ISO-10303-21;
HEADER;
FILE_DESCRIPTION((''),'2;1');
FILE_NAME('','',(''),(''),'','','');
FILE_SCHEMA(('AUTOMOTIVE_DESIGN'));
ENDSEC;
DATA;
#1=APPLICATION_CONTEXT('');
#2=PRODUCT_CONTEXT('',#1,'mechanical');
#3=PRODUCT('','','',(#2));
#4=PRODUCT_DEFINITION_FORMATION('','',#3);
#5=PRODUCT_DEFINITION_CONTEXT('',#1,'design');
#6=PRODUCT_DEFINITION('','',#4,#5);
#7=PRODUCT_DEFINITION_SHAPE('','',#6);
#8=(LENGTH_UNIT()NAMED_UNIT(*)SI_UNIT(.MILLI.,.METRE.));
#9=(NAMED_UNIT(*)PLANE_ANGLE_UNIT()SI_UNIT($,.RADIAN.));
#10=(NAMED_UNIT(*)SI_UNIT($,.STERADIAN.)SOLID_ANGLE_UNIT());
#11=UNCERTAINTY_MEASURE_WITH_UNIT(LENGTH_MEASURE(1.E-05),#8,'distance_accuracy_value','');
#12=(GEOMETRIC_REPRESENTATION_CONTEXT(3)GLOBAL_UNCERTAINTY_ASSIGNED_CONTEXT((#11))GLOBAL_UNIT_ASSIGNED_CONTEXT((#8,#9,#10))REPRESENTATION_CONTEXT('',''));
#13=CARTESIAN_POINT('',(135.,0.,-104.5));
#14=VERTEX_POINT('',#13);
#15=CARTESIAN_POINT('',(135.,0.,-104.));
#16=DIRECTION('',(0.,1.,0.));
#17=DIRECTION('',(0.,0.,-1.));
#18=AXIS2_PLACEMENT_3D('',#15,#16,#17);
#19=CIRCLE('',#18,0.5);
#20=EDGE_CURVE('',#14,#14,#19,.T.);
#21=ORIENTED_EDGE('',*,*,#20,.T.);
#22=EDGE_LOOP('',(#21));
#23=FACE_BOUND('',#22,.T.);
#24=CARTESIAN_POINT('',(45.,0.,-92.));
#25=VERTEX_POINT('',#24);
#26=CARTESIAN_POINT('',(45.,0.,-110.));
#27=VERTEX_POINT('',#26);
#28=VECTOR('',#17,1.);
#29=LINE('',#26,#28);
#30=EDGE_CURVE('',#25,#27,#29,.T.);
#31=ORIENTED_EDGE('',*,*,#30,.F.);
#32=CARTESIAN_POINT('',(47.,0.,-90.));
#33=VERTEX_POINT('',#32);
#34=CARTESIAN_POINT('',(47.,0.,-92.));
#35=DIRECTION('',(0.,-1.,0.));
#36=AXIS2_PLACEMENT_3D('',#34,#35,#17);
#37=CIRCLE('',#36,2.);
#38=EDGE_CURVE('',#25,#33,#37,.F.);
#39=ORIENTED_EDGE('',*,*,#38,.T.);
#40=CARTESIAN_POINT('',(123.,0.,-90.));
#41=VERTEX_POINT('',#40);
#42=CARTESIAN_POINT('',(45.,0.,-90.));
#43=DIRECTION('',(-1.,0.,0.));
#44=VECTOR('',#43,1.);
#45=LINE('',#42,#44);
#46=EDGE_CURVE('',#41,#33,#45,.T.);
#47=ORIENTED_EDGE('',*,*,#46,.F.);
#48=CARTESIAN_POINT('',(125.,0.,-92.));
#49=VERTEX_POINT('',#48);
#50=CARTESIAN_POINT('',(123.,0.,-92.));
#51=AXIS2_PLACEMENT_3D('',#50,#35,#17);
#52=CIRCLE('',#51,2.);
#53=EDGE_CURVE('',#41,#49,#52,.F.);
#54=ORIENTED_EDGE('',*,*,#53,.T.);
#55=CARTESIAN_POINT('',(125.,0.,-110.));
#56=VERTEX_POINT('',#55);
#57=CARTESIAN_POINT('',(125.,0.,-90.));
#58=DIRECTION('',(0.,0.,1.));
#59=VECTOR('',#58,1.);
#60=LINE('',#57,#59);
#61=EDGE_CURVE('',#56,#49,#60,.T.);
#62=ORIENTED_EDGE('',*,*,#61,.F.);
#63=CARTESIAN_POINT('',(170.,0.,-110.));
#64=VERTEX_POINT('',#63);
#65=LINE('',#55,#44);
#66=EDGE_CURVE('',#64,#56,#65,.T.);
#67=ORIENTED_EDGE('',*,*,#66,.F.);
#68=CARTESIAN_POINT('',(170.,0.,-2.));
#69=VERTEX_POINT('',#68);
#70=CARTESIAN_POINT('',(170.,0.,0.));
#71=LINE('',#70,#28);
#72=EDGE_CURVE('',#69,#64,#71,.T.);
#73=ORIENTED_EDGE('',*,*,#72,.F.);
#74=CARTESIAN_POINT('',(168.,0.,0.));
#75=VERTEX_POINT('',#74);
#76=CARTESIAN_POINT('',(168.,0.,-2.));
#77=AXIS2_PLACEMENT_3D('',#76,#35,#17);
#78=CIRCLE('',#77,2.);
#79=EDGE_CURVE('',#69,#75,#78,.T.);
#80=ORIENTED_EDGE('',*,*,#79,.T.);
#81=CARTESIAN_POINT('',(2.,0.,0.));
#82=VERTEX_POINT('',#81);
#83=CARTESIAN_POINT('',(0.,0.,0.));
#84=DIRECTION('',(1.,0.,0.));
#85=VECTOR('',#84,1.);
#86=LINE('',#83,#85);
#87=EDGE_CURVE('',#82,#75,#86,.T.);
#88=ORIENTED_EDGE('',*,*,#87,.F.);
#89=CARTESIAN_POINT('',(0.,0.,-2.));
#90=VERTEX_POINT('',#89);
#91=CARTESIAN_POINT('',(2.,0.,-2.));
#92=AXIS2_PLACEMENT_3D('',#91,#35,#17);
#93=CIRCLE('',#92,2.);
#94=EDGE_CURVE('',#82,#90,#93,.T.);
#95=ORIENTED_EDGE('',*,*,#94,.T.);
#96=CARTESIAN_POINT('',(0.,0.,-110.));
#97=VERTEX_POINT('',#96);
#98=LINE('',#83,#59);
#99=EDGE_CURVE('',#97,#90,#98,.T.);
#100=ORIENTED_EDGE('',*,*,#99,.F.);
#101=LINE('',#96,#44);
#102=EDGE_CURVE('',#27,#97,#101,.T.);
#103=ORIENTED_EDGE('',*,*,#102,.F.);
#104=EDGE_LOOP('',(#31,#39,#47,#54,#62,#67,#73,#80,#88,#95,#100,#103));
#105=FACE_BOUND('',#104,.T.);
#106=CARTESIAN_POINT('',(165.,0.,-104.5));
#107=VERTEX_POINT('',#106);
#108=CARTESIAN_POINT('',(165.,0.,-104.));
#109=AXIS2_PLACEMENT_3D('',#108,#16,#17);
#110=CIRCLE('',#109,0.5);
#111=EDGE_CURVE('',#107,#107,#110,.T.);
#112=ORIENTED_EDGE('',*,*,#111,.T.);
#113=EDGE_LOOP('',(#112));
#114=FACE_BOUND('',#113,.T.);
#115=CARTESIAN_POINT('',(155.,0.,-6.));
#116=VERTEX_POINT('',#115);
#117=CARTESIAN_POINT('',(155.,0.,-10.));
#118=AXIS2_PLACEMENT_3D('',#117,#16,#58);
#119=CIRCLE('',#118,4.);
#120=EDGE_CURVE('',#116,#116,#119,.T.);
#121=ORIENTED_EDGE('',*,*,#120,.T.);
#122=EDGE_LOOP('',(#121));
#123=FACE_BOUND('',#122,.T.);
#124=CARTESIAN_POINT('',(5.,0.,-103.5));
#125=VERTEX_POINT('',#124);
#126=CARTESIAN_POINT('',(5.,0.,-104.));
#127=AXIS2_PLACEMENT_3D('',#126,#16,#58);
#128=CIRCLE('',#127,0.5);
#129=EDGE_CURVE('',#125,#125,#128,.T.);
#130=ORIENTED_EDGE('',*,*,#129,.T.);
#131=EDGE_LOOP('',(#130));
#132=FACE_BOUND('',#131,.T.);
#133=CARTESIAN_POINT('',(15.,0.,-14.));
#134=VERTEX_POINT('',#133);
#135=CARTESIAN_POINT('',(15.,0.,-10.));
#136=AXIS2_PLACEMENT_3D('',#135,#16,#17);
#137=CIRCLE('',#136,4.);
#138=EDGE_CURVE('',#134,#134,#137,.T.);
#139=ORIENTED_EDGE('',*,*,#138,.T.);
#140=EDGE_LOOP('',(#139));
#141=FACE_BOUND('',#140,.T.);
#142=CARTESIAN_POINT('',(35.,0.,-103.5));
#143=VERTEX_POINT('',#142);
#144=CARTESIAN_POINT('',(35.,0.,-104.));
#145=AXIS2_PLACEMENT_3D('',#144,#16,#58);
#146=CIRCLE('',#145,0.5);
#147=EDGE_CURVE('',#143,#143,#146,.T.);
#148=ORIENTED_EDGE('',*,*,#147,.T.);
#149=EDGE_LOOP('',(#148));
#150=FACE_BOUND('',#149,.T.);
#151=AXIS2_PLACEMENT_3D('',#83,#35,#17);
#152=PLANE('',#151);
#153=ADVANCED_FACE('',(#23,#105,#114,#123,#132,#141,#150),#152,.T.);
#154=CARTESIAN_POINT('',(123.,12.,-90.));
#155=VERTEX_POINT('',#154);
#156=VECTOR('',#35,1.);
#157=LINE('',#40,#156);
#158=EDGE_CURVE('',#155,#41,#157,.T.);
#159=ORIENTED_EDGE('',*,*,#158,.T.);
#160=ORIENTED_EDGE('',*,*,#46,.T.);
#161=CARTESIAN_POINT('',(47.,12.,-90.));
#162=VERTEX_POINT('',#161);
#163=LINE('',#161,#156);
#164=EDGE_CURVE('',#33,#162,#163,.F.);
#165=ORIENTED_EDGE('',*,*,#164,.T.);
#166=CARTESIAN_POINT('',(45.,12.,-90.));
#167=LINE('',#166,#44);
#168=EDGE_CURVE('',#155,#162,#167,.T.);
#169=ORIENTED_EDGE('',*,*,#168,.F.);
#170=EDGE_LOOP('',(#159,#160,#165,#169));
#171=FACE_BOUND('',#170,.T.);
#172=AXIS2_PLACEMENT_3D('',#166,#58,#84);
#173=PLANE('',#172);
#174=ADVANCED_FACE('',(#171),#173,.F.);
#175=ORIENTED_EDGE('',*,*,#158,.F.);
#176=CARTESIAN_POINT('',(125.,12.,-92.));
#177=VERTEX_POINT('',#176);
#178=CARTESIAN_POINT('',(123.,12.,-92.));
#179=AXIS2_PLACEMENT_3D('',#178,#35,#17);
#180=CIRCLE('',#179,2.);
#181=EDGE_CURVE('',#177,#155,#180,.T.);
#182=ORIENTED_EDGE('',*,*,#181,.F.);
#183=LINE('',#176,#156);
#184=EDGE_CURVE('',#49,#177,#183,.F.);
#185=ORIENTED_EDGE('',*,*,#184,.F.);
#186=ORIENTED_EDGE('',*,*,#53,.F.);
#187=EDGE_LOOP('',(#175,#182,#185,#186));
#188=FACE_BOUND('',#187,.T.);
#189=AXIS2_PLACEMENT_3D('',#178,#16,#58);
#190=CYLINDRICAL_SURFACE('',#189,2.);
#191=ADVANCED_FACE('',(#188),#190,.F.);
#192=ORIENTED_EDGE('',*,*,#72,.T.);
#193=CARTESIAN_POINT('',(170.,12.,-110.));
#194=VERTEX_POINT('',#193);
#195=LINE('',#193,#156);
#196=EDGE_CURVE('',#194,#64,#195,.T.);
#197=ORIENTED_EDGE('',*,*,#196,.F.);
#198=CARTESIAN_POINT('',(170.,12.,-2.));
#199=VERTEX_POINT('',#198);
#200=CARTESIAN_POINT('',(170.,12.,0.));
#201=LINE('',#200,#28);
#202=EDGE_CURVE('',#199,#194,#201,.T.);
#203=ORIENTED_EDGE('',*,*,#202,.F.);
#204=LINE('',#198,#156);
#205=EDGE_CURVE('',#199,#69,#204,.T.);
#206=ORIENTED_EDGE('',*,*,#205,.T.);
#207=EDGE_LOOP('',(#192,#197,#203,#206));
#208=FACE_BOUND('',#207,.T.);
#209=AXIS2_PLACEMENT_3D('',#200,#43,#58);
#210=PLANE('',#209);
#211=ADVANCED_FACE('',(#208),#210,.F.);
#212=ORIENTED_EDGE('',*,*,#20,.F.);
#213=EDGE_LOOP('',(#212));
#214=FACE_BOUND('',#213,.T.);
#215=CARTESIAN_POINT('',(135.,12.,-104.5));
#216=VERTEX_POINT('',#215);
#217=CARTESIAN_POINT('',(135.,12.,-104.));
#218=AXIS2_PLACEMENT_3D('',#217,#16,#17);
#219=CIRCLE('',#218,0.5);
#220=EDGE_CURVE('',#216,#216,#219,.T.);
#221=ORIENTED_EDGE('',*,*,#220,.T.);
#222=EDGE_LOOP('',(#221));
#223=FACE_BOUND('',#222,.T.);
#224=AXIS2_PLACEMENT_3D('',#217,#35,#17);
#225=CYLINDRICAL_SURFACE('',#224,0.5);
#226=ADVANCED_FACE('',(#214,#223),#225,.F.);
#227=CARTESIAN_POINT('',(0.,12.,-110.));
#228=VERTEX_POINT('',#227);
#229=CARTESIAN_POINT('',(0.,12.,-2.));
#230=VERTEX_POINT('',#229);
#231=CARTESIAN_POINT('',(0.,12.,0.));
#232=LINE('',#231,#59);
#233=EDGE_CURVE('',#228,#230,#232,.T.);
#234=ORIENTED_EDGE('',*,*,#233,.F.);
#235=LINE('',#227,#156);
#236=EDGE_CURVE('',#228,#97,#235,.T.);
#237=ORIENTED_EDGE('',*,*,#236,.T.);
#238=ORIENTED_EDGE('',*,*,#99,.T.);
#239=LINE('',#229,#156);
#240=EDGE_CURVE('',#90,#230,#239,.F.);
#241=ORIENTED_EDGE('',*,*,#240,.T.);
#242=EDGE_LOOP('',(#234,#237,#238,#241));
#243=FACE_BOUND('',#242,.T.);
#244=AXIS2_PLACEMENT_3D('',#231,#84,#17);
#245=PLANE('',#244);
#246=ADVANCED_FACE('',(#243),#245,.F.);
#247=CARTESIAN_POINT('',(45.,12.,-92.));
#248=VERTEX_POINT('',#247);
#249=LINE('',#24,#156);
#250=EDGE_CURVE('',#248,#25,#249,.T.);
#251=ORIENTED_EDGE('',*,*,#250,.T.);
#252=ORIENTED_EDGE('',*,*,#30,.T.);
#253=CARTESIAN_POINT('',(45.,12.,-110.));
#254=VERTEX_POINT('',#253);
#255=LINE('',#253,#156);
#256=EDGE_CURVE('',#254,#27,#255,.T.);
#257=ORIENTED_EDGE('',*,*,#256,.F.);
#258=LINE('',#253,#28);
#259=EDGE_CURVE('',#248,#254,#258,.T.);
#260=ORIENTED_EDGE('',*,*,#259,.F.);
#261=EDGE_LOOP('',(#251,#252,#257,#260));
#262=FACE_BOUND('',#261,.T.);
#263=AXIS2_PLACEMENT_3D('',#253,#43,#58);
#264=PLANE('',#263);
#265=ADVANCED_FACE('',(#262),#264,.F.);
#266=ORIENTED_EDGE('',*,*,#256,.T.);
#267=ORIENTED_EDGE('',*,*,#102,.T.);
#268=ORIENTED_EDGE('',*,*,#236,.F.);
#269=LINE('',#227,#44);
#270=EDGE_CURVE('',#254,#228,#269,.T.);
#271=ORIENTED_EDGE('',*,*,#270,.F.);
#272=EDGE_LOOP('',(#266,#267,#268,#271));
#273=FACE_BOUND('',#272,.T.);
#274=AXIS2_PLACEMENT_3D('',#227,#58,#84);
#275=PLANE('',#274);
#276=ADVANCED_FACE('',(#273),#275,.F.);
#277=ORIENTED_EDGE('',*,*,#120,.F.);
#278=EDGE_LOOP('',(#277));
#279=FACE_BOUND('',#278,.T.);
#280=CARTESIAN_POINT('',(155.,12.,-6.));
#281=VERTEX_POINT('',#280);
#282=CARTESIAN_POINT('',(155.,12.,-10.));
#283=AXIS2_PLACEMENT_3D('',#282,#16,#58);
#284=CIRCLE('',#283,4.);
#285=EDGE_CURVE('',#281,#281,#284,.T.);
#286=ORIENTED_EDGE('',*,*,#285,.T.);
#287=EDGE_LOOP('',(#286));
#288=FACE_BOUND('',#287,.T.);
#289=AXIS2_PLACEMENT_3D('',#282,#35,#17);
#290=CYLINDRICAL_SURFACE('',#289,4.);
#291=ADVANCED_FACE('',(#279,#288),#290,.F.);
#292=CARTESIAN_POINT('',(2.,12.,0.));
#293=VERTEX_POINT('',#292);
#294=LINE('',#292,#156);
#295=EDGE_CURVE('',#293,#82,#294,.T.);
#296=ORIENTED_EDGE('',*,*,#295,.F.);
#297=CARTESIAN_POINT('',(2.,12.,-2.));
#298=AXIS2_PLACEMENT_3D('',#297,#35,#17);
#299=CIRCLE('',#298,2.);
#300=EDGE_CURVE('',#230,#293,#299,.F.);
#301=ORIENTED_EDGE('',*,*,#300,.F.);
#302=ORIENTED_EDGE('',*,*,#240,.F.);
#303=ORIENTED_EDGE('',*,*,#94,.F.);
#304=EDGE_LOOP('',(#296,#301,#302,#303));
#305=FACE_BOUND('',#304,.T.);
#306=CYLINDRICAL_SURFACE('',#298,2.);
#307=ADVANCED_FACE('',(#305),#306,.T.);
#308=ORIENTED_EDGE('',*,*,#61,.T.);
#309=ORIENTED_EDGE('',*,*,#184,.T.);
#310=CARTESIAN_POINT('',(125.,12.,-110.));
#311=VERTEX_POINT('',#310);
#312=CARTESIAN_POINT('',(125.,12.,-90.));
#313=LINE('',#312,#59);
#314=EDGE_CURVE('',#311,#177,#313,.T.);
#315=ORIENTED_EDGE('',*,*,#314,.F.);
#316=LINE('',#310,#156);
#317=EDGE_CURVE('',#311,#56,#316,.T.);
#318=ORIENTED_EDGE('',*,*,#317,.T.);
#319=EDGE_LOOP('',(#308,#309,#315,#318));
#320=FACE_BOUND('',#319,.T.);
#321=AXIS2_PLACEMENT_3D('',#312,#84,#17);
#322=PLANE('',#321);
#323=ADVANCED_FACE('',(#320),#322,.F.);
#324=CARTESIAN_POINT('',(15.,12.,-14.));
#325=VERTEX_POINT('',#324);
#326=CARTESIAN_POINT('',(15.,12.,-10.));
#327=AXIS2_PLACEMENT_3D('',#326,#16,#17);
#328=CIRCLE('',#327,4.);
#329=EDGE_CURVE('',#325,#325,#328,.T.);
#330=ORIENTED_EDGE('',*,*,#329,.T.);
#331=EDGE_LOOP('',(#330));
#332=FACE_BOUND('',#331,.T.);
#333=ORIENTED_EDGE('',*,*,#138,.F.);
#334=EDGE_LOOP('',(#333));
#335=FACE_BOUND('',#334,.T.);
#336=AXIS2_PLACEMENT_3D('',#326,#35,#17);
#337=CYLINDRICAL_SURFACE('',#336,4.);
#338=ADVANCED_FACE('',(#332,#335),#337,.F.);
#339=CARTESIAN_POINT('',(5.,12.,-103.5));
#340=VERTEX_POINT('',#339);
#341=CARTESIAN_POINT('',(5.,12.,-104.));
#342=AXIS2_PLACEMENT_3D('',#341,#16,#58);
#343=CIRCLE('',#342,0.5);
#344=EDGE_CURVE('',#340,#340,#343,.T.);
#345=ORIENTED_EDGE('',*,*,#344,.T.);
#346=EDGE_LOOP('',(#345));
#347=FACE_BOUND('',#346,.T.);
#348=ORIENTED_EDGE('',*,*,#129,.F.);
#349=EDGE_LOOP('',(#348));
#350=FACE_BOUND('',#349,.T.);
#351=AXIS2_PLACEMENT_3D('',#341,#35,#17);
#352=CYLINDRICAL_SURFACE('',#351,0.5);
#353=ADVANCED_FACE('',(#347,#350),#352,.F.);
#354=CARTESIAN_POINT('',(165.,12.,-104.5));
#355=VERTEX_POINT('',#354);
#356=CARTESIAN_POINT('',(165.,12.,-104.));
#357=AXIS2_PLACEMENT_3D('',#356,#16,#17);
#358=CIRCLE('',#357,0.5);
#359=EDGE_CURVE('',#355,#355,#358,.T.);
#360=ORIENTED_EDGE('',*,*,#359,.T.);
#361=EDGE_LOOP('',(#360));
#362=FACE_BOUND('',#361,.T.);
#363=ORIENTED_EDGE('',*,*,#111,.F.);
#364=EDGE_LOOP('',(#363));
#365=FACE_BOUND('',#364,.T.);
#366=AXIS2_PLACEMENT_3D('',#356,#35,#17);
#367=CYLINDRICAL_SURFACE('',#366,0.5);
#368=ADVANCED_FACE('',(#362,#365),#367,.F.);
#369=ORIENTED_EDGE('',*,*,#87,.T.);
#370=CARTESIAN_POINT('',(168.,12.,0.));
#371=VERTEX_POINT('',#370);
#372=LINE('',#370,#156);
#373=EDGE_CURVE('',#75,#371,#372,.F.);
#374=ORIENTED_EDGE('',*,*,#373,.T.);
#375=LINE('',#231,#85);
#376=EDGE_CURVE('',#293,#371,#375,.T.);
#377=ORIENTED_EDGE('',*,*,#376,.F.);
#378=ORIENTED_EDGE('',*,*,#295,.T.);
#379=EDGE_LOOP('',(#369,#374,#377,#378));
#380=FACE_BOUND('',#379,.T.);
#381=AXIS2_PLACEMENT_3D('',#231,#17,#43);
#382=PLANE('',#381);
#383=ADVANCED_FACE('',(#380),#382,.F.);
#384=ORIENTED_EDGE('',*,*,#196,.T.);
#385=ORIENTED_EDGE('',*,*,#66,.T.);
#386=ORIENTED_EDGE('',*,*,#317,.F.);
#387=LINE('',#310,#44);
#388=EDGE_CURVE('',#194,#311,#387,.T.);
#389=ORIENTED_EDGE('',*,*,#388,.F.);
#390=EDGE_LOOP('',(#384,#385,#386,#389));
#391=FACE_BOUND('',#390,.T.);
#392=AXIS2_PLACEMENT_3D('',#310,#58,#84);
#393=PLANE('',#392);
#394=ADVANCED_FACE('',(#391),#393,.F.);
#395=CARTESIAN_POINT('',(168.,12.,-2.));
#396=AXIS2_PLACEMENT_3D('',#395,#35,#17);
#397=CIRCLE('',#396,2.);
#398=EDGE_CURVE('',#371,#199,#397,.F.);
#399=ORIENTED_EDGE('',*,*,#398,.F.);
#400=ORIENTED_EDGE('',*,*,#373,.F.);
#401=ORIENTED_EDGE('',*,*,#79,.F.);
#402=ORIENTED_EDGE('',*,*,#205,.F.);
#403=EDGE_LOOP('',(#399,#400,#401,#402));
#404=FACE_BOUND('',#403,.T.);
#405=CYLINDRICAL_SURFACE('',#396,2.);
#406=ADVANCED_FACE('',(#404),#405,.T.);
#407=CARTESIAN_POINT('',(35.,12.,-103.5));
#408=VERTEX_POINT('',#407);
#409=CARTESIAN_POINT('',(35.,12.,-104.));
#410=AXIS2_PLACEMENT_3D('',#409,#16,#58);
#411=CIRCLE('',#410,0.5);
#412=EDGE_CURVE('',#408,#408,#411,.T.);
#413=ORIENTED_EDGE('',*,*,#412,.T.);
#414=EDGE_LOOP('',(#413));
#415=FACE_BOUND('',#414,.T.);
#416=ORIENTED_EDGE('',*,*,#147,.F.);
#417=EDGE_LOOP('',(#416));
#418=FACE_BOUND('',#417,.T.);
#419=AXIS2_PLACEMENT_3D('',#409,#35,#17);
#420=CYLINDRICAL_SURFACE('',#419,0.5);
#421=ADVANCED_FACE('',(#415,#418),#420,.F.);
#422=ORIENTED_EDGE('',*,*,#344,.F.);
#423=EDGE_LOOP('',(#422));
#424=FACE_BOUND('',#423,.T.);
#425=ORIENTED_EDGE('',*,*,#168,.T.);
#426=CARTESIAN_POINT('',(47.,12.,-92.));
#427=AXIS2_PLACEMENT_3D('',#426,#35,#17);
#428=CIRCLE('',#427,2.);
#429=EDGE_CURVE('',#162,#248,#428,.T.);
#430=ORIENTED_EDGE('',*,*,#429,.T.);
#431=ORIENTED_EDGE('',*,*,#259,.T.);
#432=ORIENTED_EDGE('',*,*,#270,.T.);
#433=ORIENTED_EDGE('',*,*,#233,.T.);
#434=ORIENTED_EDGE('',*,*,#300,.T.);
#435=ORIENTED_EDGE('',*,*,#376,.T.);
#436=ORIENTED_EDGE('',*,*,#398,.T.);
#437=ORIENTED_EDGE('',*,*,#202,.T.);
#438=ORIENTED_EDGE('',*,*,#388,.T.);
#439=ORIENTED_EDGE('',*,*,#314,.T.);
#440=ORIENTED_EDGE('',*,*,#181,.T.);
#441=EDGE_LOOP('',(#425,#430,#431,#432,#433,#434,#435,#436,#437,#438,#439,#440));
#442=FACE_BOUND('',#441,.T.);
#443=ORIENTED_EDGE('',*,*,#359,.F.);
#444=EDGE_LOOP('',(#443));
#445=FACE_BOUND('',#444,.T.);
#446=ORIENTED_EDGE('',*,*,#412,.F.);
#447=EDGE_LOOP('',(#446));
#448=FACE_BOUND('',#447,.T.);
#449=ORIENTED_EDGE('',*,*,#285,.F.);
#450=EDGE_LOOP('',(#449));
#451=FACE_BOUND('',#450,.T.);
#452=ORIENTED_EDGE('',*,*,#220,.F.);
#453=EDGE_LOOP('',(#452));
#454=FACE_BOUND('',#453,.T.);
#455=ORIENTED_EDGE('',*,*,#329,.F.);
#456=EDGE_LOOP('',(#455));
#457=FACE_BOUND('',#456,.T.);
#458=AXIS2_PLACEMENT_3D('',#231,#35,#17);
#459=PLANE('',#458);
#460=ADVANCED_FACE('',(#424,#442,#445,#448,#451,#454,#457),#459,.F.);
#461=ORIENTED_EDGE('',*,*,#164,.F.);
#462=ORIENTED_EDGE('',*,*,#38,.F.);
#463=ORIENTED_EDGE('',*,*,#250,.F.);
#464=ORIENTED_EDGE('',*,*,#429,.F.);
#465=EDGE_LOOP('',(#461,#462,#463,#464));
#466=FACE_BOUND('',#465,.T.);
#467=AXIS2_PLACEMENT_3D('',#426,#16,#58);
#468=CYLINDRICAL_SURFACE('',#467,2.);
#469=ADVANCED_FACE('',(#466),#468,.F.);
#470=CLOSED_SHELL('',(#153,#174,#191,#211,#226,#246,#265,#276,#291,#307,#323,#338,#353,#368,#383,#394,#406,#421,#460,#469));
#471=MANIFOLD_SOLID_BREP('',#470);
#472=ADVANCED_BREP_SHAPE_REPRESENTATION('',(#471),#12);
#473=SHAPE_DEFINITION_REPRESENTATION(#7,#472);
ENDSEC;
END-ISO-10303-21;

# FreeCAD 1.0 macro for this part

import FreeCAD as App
import Part
import Sketcher

V = App.Vector


def edges_at(feature, points):
    """Names of the edges that pass closest to the given points."""
    edges = feature.Shape.Edges
    near = lambda p: min(range(len(edges)), key=lambda i: edges[i].distToShape(Part.Vertex(*p))[0])
    return sorted({f"Edge{near(p) + 1}" for p in points})

doc = App.newDocument("Part")
body = doc.addObject("PartDesign::Body", "Body")

# Sketch on XZ plane
sketch1 = body.newObject("Sketcher::SketchObject", "Sketch")
sketch1.AttachmentSupport = (doc.getObject("XZ_Plane"), [""])
sketch1.MapMode = "FlatFace"
sketch1.addGeometry([
    Part.LineSegment(V(0, 0, 0), V(170, 0, 0)),  # 0
    Part.LineSegment(V(170, 0, 0), V(170, -110, 0)),  # 1
    Part.LineSegment(V(170, -110, 0), V(125, -110, 0)),  # 2
    Part.LineSegment(V(125, -110, 0), V(125, -90, 0)),  # 3
    Part.LineSegment(V(125, -90, 0), V(45, -90, 0)),  # 4
    Part.LineSegment(V(45, -90, 0), V(45, -110, 0)),  # 5
    Part.LineSegment(V(45, -110, 0), V(0, -110, 0)),  # 6
    Part.LineSegment(V(0, -110, 0), V(0, 0, 0)),  # 7
    Part.Circle(V(15, -10, 0), V(0, 0, 1), 4),  # 8
    Part.Circle(V(155, -10, 0), V(0, 0, 1), 4),  # 9
    Part.Circle(V(5, -104, 0), V(0, 0, 1), 0.5),  # 10
    Part.Circle(V(35, -104, 0), V(0, 0, 1), 0.5),  # 11
    Part.Circle(V(135, -104, 0), V(0, 0, 1), 0.5),  # 12
    Part.Circle(V(165, -104, 0), V(0, 0, 1), 0.5),  # 13
], False)
sketch1.addConstraint([
    Sketcher.Constraint("Coincident", 0, 2, 1, 1),
    Sketcher.Constraint("Coincident", 1, 2, 2, 1),
    Sketcher.Constraint("Coincident", 2, 2, 3, 1),
    Sketcher.Constraint("Coincident", 3, 2, 4, 1),
    Sketcher.Constraint("Coincident", 4, 2, 5, 1),
    Sketcher.Constraint("Coincident", 5, 2, 6, 1),
    Sketcher.Constraint("Coincident", 6, 2, 7, 1),
    Sketcher.Constraint("Coincident", 7, 2, 0, 1),
    Sketcher.Constraint("Horizontal", 0),
    Sketcher.Constraint("Vertical", 1),
    Sketcher.Constraint("Horizontal", 2),
    Sketcher.Constraint("Vertical", 3),
    Sketcher.Constraint("Horizontal", 4),
    Sketcher.Constraint("Vertical", 5),
    Sketcher.Constraint("Horizontal", 6),
    Sketcher.Constraint("Vertical", 7),
    Sketcher.Constraint("Coincident", 7, 2, -1, 1),
    Sketcher.Constraint("Equal", 8, 9),
    Sketcher.Constraint("Equal", 10, 11),
    Sketcher.Constraint("Equal", 11, 12),
    Sketcher.Constraint("Equal", 12, 13),
    Sketcher.Constraint("Horizontal", 8, 3, 9, 3),
    Sketcher.Constraint("Horizontal", 10, 3, 11, 3),
    Sketcher.Constraint("Horizontal", 11, 3, 12, 3),
    Sketcher.Constraint("Horizontal", 12, 3, 13, 3),
    Sketcher.Constraint("Horizontal", 2, 2, 5, 2),
    Sketcher.Constraint("Equal", 2, 6),
    Sketcher.Constraint("Diameter", 8, 8.0),
    Sketcher.Constraint("Diameter", 10, 1.0),
    Sketcher.Constraint("DistanceX", 0, 1, 0, 2, 170.0),
    Sketcher.Constraint("DistanceX", 2, 2, 2, 1, 45.0),
    Sketcher.Constraint("DistanceY", 1, 2, 1, 1, 110.0),
    Sketcher.Constraint("DistanceY", 3, 1, 3, 2, 20.0),
    Sketcher.Constraint("DistanceX", -1, 1, 8, 3, 15.0),
    Sketcher.Constraint("DistanceY", 8, 3, -1, 1, 10.0),
    Sketcher.Constraint("DistanceX", -1, 1, 9, 3, 155.0),
    Sketcher.Constraint("DistanceX", -1, 1, 10, 3, 5.0),
    Sketcher.Constraint("DistanceY", 10, 3, -1, 1, 104.0),
    Sketcher.Constraint("DistanceX", -1, 1, 11, 3, 35.0),
    Sketcher.Constraint("DistanceX", -1, 1, 12, 3, 135.0),
    Sketcher.Constraint("DistanceX", -1, 1, 13, 3, 165.0),
])
pad1 = body.newObject("PartDesign::Pad", "Pad")
pad1.Profile = sketch1
pad1.Length = 12
pad1.Reversed = True
doc.recompute()

fillet = body.newObject("PartDesign::Fillet", "Fillet")
fillet.Base = (pad1, edges_at(pad1, [
    (45, 6, -90),
    (125, 6, -90),
    (170, 6, 0),
    (0, 6, 0),
]))
fillet.Radius = 2

doc.recompute()
